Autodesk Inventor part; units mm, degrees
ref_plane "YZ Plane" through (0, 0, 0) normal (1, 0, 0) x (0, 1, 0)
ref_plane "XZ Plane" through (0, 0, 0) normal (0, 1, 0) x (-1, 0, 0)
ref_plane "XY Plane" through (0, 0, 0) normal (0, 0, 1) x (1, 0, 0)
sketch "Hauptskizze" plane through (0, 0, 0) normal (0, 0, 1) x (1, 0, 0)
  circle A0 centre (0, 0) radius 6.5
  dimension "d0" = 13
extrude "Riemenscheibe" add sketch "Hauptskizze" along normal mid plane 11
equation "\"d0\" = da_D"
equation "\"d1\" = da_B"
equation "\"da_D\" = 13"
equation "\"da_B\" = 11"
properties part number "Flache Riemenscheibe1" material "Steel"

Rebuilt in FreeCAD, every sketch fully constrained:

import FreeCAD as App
import Part
import Sketcher
from FreeCAD import Vector

doc = App.newDocument("Part")
params = doc.addObject("Spreadsheet::Sheet", "Params")
for row, (alias, value) in enumerate([
    ("sketch1_diameter", "13 mm"),
    ("pad1_length", "11 mm"),
], start=1):
    params.set(f"A{row}", alias)
    params.set(f"B{row}", "=" + value)
    params.setAlias(f"B{row}", alias)

body = doc.addObject("PartDesign::Body", "Body")

# Sketch on XY plane
sketch1 = body.newObject("Sketcher::SketchObject", "Sketch")
sketch1.AttachmentSupport = (doc.getObject("XY_Plane"), [""])
sketch1.MapMode = "FlatFace"
sketch1.addGeometry(Part.Circle(Vector(0, 0, 0), Vector(0, 0, 1), 6), False)
sketch1.addConstraint([
    Sketcher.Constraint("Coincident", 0, 3, -1, 1),
    Sketcher.Constraint("Diameter", 0, 13.0),
])
sketch1.setExpression("Constraints[1]", "Params.sketch1_diameter")
pad1 = body.newObject("PartDesign::Pad", "Pad")
pad1.Profile = sketch1
pad1.setExpression("Length", "Params.pad1_length")
pad1.Midplane = True

doc.recompute()
